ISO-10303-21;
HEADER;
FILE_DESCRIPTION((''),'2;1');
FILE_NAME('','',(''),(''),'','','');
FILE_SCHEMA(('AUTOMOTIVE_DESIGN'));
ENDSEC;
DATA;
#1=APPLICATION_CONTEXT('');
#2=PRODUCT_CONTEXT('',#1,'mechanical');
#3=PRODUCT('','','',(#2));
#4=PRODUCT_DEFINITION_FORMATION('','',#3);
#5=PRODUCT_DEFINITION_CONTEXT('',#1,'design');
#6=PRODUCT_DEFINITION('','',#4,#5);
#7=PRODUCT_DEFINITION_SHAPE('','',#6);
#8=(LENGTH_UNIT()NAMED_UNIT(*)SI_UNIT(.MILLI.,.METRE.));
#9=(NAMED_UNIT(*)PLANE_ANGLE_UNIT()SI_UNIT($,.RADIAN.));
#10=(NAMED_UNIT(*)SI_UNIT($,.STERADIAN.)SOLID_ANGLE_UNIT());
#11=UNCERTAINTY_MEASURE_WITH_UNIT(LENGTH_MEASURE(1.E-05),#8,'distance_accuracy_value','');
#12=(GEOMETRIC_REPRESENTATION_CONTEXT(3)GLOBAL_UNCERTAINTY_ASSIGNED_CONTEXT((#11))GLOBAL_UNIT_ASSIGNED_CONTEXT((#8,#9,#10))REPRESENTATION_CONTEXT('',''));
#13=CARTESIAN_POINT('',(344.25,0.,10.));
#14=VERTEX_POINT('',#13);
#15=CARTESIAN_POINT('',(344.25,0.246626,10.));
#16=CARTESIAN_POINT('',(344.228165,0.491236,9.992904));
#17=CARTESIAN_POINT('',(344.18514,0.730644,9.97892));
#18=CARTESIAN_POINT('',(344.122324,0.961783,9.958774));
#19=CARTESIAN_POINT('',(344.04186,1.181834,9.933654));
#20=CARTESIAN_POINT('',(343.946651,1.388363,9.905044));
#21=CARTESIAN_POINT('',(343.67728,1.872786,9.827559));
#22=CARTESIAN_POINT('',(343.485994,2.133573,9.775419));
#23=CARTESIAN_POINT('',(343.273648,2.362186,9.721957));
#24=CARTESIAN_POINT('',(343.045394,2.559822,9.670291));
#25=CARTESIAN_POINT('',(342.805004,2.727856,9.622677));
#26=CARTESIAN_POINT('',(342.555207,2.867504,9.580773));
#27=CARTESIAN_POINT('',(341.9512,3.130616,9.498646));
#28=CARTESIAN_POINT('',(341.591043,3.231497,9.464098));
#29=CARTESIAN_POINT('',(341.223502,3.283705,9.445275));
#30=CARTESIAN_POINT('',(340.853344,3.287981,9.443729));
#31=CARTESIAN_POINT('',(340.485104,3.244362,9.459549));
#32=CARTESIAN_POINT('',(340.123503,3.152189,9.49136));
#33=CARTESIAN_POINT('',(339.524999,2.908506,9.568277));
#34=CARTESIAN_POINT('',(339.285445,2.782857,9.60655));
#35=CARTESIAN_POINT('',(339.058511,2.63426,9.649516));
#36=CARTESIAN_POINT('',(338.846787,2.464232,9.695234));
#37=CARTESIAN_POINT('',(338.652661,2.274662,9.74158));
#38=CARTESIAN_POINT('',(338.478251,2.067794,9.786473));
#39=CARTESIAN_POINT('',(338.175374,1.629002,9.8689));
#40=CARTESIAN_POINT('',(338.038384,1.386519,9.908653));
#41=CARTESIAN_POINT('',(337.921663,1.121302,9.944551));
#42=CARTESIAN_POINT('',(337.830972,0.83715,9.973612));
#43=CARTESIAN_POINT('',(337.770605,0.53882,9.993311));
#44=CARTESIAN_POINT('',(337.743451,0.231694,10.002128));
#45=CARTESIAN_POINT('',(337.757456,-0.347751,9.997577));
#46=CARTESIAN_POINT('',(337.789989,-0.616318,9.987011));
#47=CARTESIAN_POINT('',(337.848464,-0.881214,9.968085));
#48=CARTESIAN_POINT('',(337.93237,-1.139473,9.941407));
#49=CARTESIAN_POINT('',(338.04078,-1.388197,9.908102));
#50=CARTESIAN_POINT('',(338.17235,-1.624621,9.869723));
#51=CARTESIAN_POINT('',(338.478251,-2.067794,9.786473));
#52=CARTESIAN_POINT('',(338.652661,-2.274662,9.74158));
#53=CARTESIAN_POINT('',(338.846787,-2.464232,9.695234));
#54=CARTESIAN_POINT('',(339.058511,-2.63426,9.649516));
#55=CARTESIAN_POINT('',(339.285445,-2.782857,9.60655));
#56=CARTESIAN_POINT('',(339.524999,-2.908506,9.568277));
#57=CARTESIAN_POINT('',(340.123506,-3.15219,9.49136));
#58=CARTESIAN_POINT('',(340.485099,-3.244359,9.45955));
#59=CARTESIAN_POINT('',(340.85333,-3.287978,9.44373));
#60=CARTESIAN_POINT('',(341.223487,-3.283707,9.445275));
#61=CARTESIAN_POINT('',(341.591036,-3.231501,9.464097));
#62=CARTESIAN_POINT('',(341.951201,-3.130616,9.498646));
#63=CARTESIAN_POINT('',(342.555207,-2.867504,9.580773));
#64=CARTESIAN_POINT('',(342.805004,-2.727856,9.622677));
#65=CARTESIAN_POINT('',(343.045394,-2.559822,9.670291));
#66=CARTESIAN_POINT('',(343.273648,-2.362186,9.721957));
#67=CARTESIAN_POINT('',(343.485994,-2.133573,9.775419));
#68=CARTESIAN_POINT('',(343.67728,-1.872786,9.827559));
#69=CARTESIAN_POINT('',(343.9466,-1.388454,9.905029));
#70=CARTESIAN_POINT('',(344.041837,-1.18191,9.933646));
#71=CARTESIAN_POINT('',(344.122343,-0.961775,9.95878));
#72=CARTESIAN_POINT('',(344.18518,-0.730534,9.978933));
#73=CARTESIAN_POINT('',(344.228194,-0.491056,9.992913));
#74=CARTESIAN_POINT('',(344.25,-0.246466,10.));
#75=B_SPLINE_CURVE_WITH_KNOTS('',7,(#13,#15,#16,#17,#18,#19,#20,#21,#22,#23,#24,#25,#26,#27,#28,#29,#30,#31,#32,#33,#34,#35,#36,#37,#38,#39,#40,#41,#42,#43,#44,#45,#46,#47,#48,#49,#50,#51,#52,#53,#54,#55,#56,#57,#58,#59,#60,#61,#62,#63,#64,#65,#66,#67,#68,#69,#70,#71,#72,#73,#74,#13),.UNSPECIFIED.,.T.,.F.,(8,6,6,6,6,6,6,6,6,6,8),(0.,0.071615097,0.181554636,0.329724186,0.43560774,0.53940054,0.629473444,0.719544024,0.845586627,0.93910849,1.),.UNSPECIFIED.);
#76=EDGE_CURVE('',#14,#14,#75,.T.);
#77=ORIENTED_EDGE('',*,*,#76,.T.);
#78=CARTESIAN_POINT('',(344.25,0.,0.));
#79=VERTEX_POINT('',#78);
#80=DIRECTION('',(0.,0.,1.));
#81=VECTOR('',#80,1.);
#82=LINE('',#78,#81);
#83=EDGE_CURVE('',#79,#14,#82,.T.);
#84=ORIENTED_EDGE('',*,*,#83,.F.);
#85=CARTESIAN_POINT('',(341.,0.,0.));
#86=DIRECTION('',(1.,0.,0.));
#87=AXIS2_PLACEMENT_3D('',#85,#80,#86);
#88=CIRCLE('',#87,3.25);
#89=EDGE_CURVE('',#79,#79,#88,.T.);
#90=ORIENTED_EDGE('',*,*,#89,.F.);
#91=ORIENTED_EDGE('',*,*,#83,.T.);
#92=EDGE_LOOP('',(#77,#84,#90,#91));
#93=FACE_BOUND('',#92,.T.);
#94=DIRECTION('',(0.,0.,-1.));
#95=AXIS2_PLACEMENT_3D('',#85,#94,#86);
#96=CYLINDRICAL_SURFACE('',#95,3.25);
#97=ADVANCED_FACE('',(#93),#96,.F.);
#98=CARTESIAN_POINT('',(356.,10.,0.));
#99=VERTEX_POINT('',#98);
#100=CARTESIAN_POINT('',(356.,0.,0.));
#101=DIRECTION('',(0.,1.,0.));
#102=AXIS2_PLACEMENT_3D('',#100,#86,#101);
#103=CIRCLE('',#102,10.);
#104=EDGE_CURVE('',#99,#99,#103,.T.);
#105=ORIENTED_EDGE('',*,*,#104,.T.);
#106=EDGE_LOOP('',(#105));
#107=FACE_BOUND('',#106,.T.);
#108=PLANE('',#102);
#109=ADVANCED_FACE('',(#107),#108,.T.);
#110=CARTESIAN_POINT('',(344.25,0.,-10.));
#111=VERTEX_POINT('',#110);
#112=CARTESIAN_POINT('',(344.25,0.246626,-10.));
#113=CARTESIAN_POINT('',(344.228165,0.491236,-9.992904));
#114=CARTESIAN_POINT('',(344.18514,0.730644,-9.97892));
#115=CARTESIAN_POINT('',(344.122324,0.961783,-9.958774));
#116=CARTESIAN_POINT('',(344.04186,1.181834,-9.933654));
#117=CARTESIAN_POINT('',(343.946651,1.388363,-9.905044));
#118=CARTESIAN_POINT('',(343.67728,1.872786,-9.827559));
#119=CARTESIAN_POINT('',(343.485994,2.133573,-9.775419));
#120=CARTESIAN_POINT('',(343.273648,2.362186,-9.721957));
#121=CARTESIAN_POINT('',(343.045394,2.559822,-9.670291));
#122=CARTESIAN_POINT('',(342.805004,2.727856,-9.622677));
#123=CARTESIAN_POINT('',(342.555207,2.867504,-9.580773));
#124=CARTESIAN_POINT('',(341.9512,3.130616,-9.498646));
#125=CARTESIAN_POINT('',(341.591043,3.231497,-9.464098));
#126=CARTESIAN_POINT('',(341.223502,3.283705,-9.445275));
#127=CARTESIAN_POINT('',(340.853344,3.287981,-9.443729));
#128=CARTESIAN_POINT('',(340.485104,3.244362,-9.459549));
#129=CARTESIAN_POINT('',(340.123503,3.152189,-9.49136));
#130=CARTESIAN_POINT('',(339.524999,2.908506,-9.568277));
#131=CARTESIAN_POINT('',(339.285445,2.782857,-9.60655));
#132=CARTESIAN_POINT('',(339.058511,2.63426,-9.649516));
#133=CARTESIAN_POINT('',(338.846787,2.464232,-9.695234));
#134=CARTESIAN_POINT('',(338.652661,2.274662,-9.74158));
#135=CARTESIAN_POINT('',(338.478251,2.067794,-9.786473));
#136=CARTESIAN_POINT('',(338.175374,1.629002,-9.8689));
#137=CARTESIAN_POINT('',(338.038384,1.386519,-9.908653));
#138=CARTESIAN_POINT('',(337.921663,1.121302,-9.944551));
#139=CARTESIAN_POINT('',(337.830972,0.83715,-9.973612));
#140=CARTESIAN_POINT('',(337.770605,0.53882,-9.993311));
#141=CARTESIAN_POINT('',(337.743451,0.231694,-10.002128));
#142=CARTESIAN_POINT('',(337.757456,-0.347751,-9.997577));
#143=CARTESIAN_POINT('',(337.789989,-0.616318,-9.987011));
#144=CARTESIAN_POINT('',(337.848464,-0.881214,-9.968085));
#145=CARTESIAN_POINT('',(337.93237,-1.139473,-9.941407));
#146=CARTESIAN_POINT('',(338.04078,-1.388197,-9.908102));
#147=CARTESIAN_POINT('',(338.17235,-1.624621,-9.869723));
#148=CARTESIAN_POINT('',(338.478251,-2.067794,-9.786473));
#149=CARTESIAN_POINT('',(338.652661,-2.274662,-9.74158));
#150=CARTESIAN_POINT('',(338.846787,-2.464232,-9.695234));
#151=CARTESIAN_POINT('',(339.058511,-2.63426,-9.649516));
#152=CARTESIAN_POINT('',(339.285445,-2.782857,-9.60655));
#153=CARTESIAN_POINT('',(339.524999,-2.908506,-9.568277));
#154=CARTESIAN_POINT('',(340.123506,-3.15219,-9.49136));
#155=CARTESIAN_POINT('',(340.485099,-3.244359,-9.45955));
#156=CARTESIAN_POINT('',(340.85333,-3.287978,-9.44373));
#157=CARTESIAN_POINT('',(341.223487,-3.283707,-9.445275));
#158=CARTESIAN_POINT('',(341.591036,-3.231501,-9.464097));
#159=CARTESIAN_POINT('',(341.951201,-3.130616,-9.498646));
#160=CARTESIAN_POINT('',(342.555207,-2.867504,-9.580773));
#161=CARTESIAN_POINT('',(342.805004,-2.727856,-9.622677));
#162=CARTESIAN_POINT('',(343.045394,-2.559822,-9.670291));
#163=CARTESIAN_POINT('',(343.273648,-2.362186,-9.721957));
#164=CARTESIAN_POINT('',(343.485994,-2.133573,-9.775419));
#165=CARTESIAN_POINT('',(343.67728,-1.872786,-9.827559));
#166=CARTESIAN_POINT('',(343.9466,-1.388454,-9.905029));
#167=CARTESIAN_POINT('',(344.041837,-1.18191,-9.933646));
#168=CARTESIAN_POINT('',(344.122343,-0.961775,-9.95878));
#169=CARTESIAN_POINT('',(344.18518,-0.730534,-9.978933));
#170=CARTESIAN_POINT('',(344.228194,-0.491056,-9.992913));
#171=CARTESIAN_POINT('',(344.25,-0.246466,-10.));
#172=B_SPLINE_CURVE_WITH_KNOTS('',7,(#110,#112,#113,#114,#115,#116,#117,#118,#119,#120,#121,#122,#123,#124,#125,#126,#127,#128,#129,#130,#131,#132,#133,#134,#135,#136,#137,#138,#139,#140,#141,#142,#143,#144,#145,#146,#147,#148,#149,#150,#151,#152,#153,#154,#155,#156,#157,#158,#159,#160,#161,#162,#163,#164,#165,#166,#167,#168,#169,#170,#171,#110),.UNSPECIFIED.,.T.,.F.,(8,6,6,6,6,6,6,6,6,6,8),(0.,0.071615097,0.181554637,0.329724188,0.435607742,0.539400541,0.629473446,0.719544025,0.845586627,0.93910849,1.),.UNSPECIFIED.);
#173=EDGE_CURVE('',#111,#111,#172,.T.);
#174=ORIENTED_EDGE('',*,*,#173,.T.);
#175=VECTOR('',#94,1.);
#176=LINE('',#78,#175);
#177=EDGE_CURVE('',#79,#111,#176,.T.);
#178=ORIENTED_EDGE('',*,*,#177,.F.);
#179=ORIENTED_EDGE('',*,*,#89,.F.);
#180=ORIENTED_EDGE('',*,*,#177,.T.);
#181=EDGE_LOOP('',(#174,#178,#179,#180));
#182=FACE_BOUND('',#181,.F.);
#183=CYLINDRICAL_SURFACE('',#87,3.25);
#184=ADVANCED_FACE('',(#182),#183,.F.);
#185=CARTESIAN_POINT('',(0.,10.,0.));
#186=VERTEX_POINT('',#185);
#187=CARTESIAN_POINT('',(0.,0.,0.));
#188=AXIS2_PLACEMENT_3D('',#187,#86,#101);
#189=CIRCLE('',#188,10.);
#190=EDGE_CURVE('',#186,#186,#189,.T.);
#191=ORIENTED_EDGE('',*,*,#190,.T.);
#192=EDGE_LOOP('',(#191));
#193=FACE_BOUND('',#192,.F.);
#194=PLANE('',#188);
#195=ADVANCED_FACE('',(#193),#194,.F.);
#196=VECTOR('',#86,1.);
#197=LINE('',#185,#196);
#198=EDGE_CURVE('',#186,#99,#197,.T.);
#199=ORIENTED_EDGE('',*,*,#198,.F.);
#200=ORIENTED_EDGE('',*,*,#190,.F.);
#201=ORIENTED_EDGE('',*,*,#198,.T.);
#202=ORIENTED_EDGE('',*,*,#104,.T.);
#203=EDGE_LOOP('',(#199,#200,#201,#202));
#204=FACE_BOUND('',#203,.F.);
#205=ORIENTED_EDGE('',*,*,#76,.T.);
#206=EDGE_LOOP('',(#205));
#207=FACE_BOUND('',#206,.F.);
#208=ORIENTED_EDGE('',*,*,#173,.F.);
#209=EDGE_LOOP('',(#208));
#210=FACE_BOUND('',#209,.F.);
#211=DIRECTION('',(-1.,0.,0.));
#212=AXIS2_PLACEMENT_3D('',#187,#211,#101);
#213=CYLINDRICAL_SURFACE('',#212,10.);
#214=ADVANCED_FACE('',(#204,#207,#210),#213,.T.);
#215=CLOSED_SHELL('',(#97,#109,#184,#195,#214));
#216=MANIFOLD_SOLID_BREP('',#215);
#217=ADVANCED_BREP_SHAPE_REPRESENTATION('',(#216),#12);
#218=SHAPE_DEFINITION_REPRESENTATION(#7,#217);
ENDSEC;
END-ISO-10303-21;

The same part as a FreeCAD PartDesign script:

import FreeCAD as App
import Part
import Sketcher
from FreeCAD import Vector

doc = App.newDocument("Part")
body = doc.addObject("PartDesign::Body", "Body")

# Sketch on YZ plane
sketch1 = doc.addObject("Sketcher::SketchObject", "Sketch")
body.addObject(sketch1)
sketch1.AttachmentSupport = (doc.YZ_Plane, [""])
sketch1.MapMode = "FlatFace"
sketch1.addGeometry(Part.Circle(Vector(0, 0, 0), Vector(0, 0, 1), 10), False)
sketch1.addConstraint([
    Sketcher.Constraint("Coincident", 0, 3, -1, 1),
    Sketcher.Constraint("Diameter", 0, 20.0),
])
pad1 = doc.addObject("PartDesign::Pad", "Pad")
body.addObject(pad1)
pad1.Profile = sketch1
pad1.Length = 356

# Sketch on XY plane
sketch2 = doc.addObject("Sketcher::SketchObject", "Sketch001")
body.addObject(sketch2)
sketch2.AttachmentSupport = (doc.XY_Plane, [""])
sketch2.MapMode = "FlatFace"
sketch2.addGeometry(Part.Circle(Vector(341, 0, 0), Vector(0, 0, 1), 3.2), False)
sketch2.addConstraint([
    Sketcher.Constraint("PointOnObject", 0, 3, -1),
    Sketcher.Constraint("Diameter", 0, 6.5),
    Sketcher.Constraint("DistanceX", -1, 1, 0, 3, 341.0),
])
pocket1 = doc.addObject("PartDesign::Pocket", "Pocket")
body.addObject(pocket1)
pocket1.Profile = sketch2
pocket1.Length = 356
pocket1.Midplane = True

doc.recompute()
